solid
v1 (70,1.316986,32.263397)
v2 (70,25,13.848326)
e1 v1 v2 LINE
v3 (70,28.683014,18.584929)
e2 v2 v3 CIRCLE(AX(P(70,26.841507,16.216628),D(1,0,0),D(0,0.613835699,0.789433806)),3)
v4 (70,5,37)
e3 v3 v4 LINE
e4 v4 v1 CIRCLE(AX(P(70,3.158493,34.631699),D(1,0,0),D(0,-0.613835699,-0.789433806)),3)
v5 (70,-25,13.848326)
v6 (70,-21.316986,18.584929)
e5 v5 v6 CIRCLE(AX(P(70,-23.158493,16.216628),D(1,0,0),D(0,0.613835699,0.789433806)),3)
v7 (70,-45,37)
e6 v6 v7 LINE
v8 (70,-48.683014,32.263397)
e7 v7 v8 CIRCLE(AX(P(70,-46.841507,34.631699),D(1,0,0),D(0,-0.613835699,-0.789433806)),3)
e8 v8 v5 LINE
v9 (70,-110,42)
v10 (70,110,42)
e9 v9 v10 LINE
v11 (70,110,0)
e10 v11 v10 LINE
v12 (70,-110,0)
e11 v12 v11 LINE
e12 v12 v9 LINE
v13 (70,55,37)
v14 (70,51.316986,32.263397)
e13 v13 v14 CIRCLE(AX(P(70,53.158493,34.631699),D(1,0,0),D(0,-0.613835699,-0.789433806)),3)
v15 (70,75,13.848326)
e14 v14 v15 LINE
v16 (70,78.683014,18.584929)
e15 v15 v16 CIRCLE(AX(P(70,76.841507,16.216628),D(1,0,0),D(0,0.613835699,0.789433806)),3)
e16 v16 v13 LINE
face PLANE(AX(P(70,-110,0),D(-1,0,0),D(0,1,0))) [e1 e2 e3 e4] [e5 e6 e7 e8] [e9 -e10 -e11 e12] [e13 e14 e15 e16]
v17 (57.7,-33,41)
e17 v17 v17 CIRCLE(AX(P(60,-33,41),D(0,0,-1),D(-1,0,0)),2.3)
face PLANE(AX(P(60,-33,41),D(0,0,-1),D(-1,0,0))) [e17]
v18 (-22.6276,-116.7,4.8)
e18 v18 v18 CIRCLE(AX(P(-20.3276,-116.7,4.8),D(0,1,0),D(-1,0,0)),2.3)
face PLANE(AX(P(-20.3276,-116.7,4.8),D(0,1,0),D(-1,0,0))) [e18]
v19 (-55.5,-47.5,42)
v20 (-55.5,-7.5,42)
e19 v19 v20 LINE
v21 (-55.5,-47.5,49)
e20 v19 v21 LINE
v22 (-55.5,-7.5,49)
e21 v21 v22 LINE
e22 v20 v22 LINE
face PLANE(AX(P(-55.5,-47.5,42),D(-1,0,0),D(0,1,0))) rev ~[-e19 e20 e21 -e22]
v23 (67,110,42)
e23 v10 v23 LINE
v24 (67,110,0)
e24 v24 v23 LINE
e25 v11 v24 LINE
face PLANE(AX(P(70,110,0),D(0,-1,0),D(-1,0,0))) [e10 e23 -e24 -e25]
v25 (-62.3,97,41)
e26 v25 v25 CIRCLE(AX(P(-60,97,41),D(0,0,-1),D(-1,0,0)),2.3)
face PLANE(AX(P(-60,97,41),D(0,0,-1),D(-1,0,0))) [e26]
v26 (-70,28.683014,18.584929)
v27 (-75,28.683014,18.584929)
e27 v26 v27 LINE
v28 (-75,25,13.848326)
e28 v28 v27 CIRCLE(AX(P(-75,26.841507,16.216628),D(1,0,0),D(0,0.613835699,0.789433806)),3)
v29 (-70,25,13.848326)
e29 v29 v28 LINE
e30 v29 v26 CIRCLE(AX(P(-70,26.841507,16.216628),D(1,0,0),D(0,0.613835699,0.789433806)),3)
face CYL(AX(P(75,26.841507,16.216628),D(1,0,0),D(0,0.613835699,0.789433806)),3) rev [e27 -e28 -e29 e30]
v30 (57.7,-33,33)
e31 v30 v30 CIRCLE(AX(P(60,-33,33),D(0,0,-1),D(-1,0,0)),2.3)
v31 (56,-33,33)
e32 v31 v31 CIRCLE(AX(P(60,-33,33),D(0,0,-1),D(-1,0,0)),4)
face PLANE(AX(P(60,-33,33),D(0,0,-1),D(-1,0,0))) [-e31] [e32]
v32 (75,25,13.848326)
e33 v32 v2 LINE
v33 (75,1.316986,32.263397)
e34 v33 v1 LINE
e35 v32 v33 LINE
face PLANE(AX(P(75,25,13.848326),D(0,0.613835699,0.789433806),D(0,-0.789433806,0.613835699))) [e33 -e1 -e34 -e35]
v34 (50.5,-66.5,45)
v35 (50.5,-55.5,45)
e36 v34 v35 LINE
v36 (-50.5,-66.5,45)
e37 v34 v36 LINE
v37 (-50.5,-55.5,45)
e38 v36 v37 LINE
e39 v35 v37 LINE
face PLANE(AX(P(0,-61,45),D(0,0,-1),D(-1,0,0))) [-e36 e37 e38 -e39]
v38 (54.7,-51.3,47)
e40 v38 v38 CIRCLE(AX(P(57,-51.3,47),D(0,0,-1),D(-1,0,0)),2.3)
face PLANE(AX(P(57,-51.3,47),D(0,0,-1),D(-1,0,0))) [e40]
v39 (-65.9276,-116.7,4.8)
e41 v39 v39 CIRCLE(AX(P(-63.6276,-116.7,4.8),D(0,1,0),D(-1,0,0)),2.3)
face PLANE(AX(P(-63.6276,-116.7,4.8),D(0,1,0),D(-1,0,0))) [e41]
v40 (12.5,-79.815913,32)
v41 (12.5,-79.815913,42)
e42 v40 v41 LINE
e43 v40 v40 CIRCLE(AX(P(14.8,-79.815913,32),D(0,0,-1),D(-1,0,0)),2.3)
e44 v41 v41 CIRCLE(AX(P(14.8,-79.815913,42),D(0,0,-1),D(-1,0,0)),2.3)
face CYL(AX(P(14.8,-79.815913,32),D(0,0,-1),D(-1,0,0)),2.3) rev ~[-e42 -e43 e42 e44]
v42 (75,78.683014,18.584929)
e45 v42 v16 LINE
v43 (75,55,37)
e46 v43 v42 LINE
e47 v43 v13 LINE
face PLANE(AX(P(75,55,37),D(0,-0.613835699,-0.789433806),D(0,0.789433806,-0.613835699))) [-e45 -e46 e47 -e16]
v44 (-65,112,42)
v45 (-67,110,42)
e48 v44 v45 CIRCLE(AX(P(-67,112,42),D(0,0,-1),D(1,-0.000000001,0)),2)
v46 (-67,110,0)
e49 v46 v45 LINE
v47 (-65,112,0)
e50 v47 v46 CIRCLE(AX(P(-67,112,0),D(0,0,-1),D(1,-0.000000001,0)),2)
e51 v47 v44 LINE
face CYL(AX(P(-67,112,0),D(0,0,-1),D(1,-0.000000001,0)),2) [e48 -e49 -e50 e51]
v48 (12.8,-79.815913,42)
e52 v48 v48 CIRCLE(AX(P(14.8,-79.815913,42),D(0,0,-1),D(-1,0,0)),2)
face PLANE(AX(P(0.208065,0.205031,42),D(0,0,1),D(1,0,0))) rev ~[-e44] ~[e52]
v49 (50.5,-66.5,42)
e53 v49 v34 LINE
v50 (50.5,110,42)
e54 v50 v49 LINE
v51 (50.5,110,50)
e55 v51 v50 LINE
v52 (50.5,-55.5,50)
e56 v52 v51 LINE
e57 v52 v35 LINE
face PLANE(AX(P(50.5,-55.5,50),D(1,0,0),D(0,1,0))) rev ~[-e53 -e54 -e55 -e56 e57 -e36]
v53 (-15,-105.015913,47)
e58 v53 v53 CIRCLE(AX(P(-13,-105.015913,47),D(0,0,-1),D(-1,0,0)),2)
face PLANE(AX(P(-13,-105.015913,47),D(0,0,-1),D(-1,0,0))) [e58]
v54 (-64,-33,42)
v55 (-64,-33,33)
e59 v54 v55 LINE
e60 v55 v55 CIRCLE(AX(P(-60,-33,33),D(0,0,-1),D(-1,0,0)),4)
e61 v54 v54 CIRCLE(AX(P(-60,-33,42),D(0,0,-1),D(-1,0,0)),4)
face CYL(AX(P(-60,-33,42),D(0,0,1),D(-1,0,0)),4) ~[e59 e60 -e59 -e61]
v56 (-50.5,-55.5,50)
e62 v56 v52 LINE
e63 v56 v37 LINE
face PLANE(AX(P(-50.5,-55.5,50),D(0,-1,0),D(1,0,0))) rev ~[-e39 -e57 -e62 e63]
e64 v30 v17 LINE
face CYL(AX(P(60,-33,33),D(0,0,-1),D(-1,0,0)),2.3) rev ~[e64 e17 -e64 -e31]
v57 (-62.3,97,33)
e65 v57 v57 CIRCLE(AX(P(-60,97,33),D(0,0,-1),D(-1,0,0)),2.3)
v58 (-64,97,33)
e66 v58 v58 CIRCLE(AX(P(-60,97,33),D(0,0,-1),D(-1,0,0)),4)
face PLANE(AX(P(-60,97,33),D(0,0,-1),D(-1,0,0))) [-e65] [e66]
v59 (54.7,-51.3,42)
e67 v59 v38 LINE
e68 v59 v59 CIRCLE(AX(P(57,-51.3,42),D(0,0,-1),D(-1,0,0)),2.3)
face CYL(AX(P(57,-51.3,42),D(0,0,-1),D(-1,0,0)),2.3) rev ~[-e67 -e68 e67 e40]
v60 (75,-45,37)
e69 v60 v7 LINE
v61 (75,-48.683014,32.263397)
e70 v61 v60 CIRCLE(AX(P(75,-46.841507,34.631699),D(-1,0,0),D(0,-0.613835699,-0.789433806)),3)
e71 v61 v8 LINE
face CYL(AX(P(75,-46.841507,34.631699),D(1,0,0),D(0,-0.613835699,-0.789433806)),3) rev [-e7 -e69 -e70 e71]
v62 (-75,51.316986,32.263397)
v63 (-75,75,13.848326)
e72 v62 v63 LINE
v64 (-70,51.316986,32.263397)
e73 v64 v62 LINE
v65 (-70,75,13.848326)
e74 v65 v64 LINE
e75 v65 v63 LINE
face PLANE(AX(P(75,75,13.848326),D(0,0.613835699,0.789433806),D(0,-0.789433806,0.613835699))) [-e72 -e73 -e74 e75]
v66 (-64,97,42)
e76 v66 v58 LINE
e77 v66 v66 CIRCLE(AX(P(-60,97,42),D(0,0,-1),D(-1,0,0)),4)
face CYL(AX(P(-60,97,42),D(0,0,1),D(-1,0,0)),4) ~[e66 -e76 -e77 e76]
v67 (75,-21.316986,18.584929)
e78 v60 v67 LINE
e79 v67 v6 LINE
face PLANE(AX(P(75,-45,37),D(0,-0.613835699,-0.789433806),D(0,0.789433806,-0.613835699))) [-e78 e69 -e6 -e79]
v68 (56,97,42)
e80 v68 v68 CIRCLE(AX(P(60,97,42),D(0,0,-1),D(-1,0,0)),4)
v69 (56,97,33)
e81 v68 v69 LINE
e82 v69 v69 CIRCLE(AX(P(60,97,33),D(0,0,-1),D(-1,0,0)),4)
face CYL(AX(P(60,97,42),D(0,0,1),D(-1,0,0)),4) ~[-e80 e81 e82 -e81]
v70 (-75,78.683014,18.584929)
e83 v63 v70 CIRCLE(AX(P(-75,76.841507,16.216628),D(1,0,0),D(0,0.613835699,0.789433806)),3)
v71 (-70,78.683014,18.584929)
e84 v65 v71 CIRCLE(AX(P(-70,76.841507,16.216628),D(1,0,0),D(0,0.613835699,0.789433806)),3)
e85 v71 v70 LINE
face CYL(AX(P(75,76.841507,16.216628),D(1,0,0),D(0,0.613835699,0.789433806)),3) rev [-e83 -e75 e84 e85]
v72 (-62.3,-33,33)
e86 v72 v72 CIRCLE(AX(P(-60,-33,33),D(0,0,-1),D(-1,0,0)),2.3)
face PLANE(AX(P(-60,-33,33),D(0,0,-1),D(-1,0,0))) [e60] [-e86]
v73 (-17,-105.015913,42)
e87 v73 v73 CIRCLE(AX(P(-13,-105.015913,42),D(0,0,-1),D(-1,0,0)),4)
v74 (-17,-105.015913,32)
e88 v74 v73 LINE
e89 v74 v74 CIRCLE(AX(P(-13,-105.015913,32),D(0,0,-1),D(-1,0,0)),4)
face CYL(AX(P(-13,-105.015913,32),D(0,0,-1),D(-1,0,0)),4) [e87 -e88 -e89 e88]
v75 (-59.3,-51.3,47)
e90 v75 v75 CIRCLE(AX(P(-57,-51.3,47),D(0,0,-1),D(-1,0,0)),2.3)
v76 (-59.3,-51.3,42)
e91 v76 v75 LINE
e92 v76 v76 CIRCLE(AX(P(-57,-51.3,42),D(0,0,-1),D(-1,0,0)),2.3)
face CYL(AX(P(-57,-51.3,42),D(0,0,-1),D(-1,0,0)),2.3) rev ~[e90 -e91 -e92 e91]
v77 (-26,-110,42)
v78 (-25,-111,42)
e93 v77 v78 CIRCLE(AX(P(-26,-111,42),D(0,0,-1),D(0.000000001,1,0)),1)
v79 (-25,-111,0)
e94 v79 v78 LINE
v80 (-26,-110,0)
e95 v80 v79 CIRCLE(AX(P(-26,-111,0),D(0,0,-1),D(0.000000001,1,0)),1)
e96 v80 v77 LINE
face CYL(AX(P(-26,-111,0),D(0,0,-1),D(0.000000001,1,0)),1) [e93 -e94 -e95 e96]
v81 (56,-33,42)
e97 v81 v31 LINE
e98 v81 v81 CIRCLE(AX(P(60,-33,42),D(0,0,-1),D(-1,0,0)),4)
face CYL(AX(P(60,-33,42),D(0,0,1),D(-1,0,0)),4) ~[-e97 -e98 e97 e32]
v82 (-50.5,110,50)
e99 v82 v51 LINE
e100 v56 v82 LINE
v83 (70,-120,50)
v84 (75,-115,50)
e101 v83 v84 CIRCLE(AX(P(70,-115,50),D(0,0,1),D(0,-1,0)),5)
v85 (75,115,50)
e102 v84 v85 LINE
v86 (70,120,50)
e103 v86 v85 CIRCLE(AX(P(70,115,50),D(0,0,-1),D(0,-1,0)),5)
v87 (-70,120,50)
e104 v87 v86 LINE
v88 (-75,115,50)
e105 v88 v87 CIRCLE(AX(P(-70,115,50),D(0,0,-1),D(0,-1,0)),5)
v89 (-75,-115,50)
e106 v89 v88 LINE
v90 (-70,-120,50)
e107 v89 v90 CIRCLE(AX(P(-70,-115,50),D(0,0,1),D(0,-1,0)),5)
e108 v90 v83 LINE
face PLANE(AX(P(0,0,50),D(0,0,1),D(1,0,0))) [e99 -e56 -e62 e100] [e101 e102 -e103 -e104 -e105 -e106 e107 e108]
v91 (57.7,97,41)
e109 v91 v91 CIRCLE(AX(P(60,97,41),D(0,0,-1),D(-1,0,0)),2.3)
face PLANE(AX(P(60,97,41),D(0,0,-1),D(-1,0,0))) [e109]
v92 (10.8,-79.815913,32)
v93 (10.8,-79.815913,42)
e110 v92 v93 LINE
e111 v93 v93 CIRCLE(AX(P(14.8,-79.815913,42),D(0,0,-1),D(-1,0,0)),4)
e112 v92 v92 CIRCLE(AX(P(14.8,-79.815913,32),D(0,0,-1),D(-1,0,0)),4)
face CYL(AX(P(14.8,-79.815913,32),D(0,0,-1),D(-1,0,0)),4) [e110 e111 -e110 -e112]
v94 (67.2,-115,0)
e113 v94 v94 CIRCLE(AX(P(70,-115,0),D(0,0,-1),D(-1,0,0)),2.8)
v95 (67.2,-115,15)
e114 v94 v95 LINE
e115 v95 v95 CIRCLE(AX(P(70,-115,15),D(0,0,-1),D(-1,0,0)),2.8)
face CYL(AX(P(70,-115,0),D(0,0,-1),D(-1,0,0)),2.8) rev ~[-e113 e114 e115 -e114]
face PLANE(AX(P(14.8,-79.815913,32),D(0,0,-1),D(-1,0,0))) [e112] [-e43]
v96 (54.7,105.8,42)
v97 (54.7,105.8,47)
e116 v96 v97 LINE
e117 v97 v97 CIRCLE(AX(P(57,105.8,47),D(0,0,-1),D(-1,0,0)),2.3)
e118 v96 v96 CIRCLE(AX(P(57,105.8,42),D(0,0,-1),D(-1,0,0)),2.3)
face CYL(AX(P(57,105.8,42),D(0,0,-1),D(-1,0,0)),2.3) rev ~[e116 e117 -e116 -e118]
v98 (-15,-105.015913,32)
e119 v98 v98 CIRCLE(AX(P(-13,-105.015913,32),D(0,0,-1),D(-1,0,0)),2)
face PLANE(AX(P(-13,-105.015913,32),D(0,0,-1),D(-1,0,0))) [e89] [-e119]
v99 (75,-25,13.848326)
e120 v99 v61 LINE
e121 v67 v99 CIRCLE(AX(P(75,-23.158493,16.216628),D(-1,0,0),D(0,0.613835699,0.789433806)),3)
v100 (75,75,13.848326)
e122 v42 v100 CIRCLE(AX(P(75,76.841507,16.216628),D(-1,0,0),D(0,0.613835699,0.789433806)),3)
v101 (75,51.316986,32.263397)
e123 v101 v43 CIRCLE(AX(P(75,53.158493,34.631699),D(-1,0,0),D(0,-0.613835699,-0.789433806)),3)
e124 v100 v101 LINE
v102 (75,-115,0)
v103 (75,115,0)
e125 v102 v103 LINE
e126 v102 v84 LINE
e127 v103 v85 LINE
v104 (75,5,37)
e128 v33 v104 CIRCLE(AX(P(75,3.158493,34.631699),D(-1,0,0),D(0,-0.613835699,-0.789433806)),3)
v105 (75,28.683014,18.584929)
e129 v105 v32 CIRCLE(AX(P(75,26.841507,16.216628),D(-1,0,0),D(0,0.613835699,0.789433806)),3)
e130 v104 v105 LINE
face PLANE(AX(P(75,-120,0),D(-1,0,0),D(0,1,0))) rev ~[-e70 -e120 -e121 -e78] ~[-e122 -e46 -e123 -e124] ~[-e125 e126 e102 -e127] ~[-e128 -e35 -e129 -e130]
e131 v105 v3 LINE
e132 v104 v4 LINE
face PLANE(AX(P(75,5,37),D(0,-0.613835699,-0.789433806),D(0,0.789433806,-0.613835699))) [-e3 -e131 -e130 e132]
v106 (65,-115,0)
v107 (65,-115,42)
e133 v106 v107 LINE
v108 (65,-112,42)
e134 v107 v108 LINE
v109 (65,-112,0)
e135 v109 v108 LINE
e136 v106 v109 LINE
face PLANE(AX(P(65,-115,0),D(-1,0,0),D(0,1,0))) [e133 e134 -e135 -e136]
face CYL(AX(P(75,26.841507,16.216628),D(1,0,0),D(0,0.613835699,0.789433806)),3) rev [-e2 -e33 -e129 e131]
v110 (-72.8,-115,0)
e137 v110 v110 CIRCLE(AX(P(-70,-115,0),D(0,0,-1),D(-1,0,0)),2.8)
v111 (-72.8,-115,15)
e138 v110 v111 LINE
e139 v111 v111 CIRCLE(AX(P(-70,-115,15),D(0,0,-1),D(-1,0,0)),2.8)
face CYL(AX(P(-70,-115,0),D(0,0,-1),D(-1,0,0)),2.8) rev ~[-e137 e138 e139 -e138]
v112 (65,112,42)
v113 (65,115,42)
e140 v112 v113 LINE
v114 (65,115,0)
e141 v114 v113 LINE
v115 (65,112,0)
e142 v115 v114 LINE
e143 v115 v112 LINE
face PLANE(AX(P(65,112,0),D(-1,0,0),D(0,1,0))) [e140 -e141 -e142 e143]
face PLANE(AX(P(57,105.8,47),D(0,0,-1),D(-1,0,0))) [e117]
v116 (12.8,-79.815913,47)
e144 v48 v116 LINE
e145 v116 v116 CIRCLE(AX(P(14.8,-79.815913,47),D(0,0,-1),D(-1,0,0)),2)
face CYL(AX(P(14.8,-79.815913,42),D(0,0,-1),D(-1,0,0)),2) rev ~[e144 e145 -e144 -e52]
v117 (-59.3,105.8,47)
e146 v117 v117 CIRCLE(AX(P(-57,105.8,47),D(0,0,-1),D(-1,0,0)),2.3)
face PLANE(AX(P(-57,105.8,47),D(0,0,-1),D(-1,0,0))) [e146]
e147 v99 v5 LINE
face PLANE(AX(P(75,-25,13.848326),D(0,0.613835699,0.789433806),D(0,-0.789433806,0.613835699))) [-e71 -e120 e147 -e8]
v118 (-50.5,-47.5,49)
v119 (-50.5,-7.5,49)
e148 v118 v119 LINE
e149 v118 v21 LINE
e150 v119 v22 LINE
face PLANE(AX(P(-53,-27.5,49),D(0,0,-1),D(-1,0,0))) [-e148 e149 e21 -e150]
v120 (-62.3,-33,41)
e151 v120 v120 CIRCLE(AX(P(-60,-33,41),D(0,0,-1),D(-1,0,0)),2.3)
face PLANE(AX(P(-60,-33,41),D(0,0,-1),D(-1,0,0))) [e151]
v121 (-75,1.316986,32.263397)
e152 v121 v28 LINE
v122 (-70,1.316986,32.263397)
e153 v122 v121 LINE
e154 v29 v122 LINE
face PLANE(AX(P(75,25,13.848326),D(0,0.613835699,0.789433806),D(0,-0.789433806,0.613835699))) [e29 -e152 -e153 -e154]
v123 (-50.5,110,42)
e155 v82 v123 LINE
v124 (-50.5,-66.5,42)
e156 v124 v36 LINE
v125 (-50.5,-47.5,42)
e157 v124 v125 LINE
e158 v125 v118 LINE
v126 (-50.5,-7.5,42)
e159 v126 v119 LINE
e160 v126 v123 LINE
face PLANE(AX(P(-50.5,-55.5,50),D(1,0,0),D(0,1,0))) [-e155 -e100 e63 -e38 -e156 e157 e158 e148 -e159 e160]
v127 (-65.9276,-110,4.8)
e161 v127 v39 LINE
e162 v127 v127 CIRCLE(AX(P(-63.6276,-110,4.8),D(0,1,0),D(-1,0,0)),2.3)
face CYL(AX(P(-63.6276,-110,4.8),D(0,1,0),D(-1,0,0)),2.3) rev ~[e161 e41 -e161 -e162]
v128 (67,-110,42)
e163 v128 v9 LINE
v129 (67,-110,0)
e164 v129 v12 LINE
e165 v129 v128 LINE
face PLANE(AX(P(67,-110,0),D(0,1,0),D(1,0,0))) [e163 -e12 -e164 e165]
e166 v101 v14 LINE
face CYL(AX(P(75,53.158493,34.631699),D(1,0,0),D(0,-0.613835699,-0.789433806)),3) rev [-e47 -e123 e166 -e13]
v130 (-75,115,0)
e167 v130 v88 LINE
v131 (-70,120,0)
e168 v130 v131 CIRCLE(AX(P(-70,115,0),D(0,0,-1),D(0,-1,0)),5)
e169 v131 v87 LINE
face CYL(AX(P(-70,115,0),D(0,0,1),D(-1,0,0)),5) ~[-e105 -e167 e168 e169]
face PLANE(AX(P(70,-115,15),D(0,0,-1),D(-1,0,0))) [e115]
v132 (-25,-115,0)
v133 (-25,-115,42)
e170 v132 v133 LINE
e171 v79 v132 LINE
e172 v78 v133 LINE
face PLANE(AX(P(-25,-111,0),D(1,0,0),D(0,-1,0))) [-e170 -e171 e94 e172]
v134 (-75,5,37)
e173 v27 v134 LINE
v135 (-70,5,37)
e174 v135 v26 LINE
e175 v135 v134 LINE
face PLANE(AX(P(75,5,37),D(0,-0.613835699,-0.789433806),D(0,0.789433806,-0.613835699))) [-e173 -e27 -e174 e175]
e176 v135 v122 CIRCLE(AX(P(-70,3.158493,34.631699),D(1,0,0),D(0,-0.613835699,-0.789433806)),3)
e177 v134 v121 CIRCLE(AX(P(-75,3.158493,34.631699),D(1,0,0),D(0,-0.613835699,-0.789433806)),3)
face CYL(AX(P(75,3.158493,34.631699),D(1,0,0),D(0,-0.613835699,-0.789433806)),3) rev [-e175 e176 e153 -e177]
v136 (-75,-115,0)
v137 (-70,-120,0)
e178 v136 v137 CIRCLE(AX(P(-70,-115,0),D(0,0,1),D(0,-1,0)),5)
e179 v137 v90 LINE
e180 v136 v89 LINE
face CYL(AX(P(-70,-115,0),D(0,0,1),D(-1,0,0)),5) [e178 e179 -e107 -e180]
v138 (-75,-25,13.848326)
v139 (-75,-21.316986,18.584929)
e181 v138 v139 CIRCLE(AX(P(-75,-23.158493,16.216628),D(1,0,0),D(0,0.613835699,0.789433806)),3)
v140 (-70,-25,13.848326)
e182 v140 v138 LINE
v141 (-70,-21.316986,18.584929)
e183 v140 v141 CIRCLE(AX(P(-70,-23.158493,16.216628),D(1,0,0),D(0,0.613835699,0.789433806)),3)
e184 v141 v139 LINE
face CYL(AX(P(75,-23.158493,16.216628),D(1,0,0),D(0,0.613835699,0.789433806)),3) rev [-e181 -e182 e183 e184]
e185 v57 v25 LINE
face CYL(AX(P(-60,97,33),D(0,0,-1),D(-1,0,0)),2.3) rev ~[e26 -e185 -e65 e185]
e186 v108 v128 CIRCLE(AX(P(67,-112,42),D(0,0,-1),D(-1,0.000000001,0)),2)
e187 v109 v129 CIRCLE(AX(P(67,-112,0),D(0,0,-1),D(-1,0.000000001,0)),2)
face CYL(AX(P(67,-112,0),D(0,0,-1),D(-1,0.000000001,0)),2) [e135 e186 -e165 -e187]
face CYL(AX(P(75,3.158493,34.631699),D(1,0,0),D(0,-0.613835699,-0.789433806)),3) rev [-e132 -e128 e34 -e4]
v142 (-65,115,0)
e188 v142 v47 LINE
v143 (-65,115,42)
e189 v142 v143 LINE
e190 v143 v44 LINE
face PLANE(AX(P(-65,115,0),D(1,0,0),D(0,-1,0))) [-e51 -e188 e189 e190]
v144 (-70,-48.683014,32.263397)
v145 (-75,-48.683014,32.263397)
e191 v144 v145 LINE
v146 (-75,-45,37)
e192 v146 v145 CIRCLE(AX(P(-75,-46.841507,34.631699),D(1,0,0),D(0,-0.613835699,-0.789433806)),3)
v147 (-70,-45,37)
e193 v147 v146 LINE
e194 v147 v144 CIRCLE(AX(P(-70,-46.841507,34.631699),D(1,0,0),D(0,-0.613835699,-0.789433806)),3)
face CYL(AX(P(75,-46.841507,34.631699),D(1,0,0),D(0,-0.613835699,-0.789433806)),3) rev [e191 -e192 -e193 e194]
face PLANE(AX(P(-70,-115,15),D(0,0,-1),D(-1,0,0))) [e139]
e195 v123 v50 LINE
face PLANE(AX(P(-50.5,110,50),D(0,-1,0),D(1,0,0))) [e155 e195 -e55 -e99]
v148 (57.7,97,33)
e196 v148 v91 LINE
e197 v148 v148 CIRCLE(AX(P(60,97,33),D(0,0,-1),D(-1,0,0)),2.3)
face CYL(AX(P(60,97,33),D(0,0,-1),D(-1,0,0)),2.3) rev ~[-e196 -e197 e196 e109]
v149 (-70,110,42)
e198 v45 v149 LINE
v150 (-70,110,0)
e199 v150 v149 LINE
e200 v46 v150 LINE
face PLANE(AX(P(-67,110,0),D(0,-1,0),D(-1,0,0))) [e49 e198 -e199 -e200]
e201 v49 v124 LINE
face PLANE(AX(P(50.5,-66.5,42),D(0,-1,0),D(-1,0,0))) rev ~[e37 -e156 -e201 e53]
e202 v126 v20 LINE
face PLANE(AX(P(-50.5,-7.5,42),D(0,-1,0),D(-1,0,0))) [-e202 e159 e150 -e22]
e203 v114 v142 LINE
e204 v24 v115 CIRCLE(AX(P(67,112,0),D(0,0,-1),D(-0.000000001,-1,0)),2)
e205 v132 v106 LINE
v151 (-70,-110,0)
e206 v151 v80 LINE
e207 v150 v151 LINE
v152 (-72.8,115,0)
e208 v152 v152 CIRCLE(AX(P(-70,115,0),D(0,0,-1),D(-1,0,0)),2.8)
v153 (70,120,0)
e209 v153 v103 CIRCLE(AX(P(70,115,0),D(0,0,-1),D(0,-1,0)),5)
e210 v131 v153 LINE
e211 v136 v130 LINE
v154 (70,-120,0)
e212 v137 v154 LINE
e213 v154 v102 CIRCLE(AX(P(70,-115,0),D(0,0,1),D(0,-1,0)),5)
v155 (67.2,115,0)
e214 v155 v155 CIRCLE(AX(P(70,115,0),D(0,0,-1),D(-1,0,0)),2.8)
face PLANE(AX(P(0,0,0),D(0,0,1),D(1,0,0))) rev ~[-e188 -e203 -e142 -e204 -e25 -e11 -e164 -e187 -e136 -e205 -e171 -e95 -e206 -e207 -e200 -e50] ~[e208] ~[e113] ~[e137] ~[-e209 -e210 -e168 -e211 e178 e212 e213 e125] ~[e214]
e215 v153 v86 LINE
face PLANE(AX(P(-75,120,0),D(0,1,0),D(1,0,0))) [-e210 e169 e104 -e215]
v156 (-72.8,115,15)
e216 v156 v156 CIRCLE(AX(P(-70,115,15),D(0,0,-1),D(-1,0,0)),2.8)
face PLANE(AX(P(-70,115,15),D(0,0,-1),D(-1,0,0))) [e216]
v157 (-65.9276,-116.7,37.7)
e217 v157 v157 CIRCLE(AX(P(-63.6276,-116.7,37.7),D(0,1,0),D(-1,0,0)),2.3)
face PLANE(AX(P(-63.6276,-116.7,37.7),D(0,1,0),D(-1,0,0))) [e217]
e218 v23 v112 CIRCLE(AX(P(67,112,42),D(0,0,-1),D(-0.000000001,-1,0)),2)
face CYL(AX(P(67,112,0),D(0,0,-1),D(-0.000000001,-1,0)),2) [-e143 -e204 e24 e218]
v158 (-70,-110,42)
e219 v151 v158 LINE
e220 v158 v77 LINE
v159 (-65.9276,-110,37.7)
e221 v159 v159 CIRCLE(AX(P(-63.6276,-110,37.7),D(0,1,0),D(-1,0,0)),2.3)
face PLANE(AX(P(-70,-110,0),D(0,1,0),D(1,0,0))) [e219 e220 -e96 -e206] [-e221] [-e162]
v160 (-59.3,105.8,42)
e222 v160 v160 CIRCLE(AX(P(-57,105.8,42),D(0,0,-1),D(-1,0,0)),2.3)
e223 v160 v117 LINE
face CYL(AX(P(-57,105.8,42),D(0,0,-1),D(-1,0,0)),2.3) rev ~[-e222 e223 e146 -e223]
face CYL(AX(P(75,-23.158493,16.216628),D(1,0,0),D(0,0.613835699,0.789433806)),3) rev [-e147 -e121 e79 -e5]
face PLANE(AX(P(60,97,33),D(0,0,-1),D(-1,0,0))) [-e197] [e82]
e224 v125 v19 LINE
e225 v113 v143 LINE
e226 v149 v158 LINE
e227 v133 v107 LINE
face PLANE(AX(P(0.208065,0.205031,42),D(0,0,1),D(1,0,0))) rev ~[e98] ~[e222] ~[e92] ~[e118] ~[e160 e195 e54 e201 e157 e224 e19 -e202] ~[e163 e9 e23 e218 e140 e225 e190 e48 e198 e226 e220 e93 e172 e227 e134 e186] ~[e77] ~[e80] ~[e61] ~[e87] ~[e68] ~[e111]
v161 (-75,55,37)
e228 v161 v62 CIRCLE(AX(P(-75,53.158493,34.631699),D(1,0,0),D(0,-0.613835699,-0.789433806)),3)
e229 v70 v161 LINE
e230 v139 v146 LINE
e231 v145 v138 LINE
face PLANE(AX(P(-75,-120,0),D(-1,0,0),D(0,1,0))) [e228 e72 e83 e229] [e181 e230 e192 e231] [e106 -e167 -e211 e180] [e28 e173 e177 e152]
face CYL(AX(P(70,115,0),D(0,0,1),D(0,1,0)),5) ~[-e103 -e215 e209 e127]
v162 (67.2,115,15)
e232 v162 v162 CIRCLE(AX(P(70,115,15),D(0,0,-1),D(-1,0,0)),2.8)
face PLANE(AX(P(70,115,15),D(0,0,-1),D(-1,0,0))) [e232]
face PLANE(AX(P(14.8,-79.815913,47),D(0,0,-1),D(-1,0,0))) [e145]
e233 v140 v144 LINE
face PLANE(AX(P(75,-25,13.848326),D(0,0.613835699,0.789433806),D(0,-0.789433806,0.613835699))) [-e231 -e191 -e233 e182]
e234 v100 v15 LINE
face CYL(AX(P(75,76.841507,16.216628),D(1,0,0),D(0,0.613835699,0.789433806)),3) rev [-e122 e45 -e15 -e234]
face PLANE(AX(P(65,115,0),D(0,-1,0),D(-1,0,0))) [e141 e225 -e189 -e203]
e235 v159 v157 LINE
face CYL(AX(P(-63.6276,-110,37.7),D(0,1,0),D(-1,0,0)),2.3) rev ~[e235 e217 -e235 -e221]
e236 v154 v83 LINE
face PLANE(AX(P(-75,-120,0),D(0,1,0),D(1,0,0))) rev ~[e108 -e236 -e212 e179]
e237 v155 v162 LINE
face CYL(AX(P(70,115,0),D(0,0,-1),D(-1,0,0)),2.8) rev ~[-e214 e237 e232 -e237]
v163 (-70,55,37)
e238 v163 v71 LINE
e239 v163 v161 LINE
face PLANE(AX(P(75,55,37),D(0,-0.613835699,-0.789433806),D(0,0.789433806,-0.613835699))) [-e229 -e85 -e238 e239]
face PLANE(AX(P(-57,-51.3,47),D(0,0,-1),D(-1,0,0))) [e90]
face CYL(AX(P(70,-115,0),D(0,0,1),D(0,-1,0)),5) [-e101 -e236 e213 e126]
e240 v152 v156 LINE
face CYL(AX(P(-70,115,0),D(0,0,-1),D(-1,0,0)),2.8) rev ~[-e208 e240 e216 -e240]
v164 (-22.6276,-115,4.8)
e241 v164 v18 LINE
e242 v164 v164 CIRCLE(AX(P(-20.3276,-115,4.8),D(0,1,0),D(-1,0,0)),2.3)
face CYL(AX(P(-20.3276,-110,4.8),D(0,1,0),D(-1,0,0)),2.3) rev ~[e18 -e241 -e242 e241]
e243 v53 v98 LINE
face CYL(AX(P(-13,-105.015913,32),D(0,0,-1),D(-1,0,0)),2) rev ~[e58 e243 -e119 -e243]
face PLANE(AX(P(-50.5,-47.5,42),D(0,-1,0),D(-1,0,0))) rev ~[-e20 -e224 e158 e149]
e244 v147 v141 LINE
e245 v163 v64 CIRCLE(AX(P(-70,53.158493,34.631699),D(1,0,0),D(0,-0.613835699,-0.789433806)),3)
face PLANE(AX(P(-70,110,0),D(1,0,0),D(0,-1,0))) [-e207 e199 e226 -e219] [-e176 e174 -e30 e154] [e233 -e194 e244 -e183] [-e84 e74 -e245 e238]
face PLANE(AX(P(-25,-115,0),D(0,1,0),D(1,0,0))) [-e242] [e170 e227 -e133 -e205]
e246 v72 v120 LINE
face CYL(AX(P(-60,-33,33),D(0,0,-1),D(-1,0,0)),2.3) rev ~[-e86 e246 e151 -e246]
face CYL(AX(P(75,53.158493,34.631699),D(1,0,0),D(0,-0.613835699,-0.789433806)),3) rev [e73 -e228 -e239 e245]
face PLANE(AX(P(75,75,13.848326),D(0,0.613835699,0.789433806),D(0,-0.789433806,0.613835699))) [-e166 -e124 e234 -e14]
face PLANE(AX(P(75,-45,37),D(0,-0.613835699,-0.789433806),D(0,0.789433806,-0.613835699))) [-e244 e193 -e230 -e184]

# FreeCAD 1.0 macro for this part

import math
import FreeCAD as App
import Part
import Sketcher
from FreeCAD import Vector


def edges_at(feature, points):
    """Names of the edges that pass closest to the given points."""
    edges = feature.Shape.Edges
    near = lambda p: min(range(len(edges)), key=lambda i: edges[i].distToShape(Part.Vertex(*p))[0])
    return sorted({f"Edge{near(p) + 1}" for p in points})

doc = App.newDocument("Part")
body = doc.addObject("PartDesign::Body", "Body")

# Sketch on XY plane
sketch1 = doc.addObject("Sketcher::SketchObject", "Sketch")
body.addObject(sketch1)
sketch1.AttachmentSupport = (doc.XY_Plane, [""])
sketch1.MapMode = "FlatFace"
sketch1.addGeometry(Part.LineSegment(Vector(-75, 120, 0), Vector(-75, -120, 0)), False)
sketch1.addGeometry(Part.LineSegment(Vector(-75, -120, 0), Vector(75, -120, 0)), False)
sketch1.addGeometry(Part.LineSegment(Vector(75, -120, 0), Vector(75, 120, 0)), False)
sketch1.addGeometry(Part.LineSegment(Vector(75, 120, 0), Vector(-75, 120, 0)), False)
sketch1.addConstraint(Sketcher.Constraint("Coincident", 0, 2, 1, 1))
sketch1.addConstraint(Sketcher.Constraint("Coincident", 1, 2, 2, 1))
sketch1.addConstraint(Sketcher.Constraint("Coincident", 2, 2, 3, 1))
sketch1.addConstraint(Sketcher.Constraint("Coincident", 3, 2, 0, 1))
sketch1.addConstraint(Sketcher.Constraint("Vertical", 0))
sketch1.addConstraint(Sketcher.Constraint("Horizontal", 1))
sketch1.addConstraint(Sketcher.Constraint("Vertical", 2))
sketch1.addConstraint(Sketcher.Constraint("Horizontal", 3))
sketch1.addConstraint(Sketcher.Constraint("Symmetric", 0, 2, 2, 2, -1, 1))
sketch1.addConstraint(Sketcher.Constraint("DistanceX", 1, 1, 1, 2, 150.0))
sketch1.addConstraint(Sketcher.Constraint("DistanceY", 0, 2, 0, 1, 240.0))
pad1 = doc.addObject("PartDesign::Pad", "Pad")
body.addObject(pad1)
pad1.Profile = sketch1
pad1.Length = 50

# Sketch on XY plane
sketch2 = doc.addObject("Sketcher::SketchObject", "Sketch001")
body.addObject(sketch2)
sketch2.AttachmentSupport = (doc.XY_Plane, [""])
sketch2.MapMode = "FlatFace"
sketch2.addGeometry(Part.LineSegment(Vector(70, 110, 0), Vector(70, -110, 0)), False)
sketch2.addGeometry(Part.LineSegment(Vector(70, -110, 0), Vector(67, -110, 0)), False)
sketch2.addGeometry(Part.ArcOfCircle(Part.Circle(Vector(67, -112, 0), Vector(0, 0, 1), 2), math.radians(90), math.radians(180)), False)
sketch2.addGeometry(Part.LineSegment(Vector(65, -112, 0), Vector(65, -115, 0)), False)
sketch2.addGeometry(Part.LineSegment(Vector(65, -115, 0), Vector(-25, -115, 0)), False)
sketch2.addGeometry(Part.LineSegment(Vector(-25, -115, 0), Vector(-25, -111, 0)), False)
sketch2.addGeometry(Part.ArcOfCircle(Part.Circle(Vector(-26, -111, 0), Vector(0, 0, 1), 1), math.radians(0), math.radians(90)), False)
sketch2.addGeometry(Part.LineSegment(Vector(-26, -110, 0), Vector(-70, -110, 0)), False)
sketch2.addGeometry(Part.LineSegment(Vector(-70, -110, 0), Vector(-70, 110, 0)), False)
sketch2.addGeometry(Part.LineSegment(Vector(-70, 110, 0), Vector(-67, 110, 0)), False)
sketch2.addGeometry(Part.ArcOfCircle(Part.Circle(Vector(-67, 112, 0), Vector(0, 0, 1), 2), math.radians(-90), math.radians(0)), False)
sketch2.addGeometry(Part.LineSegment(Vector(-65, 112, 0), Vector(-65, 115, 0)), False)
sketch2.addGeometry(Part.LineSegment(Vector(-65, 115, 0), Vector(65, 115, 0)), False)
sketch2.addGeometry(Part.LineSegment(Vector(65, 115, 0), Vector(65, 112, 0)), False)
sketch2.addGeometry(Part.ArcOfCircle(Part.Circle(Vector(67, 112, 0), Vector(0, 0, 1), 2), math.radians(-180), math.radians(-90)), False)
sketch2.addGeometry(Part.LineSegment(Vector(67, 110, 0), Vector(70, 110, 0)), False)
sketch2.addConstraint(Sketcher.Constraint("Coincident", 0, 2, 1, 1))
sketch2.addConstraint(Sketcher.Constraint("Tangent", 1, 2, 2, 1))
sketch2.addConstraint(Sketcher.Constraint("Tangent", 2, 2, 3, 1))
sketch2.addConstraint(Sketcher.Constraint("Coincident", 3, 2, 4, 1))
sketch2.addConstraint(Sketcher.Constraint("Coincident", 4, 2, 5, 1))
sketch2.addConstraint(Sketcher.Constraint("Tangent", 5, 2, 6, 1))
sketch2.addConstraint(Sketcher.Constraint("Tangent", 6, 2, 7, 1))
sketch2.addConstraint(Sketcher.Constraint("Coincident", 7, 2, 8, 1))
sketch2.addConstraint(Sketcher.Constraint("Coincident", 8, 2, 9, 1))
sketch2.addConstraint(Sketcher.Constraint("Tangent", 9, 2, 10, 1))
sketch2.addConstraint(Sketcher.Constraint("Tangent", 10, 2, 11, 1))
sketch2.addConstraint(Sketcher.Constraint("Coincident", 11, 2, 12, 1))
sketch2.addConstraint(Sketcher.Constraint("Coincident", 12, 2, 13, 1))
sketch2.addConstraint(Sketcher.Constraint("Tangent", 13, 2, 14, 1))
sketch2.addConstraint(Sketcher.Constraint("Tangent", 14, 2, 15, 1))
sketch2.addConstraint(Sketcher.Constraint("Coincident", 15, 2, 0, 1))
sketch2.addConstraint(Sketcher.Constraint("Vertical", 0))
sketch2.addConstraint(Sketcher.Constraint("Horizontal", 1))
sketch2.addConstraint(Sketcher.Constraint("Vertical", 3))
sketch2.addConstraint(Sketcher.Constraint("Horizontal", 4))
sketch2.addConstraint(Sketcher.Constraint("Vertical", 5))
sketch2.addConstraint(Sketcher.Constraint("Horizontal", 7))
sketch2.addConstraint(Sketcher.Constraint("Vertical", 8))
sketch2.addConstraint(Sketcher.Constraint("Horizontal", 9))
sketch2.addConstraint(Sketcher.Constraint("Vertical", 11))
sketch2.addConstraint(Sketcher.Constraint("Horizontal", 12))
sketch2.addConstraint(Sketcher.Constraint("Vertical", 13))
sketch2.addConstraint(Sketcher.Constraint("Horizontal", 15))
sketch2.addConstraint(Sketcher.Constraint("Equal", 2, 10))
sketch2.addConstraint(Sketcher.Constraint("Equal", 10, 14))
sketch2.addConstraint(Sketcher.Constraint("Symmetric", 2, 3, 10, 3, -1, 1))
sketch2.addConstraint(Sketcher.Constraint("Symmetric", 7, 2, 15, 2, -1, 1))
sketch2.addConstraint(Sketcher.Constraint("Symmetric", 10, 3, 14, 3, -2))
sketch2.addConstraint(Sketcher.Constraint("Equal", 15, 3))
sketch2.addConstraint(Sketcher.Constraint("Equal", 3, 11))
sketch2.addConstraint(Sketcher.Constraint("Radius", 2, 2.0))
sketch2.addConstraint(Sketcher.Constraint("Radius", 6, 1.0))
sketch2.addConstraint(Sketcher.Constraint("DistanceX", 1, 2, 1, 1, 3.0))
sketch2.addConstraint(Sketcher.Constraint("DistanceX", 4, 2, 4, 1, 90.0))
sketch2.addConstraint(Sketcher.Constraint("DistanceX", 7, 2, 7, 1, 44.0))
sketch2.addConstraint(Sketcher.Constraint("DistanceY", 0, 2, 0, 1, 220.0))
pocket1 = doc.addObject("PartDesign::Pocket", "Pocket")
body.addObject(pocket1)
pocket1.Profile = sketch2
pocket1.Length = 42
pocket1.Reversed = True

# Sketch on XY plane
sketch3 = doc.addObject("Sketcher::SketchObject", "Sketch002")
body.addObject(sketch3)
sketch3.AttachmentSupport = (doc.XY_Plane, [""])
sketch3.MapMode = "FlatFace"
sketch3.AttachmentOffset = App.Placement(Vector(0, 0, 50), App.Rotation())
sketch3.addGeometry(Part.LineSegment(Vector(-50, 110, 0), Vector(-50, -56, 0)), False)
sketch3.addGeometry(Part.LineSegment(Vector(-50, -56, 0), Vector(50, -56, 0)), False)
sketch3.addGeometry(Part.LineSegment(Vector(50, -56, 0), Vector(50, 110, 0)), False)
sketch3.addGeometry(Part.LineSegment(Vector(50, 110, 0), Vector(-50, 110, 0)), False)
sketch3.addConstraint(Sketcher.Constraint("Coincident", 0, 2, 1, 1))
sketch3.addConstraint(Sketcher.Constraint("Coincident", 1, 2, 2, 1))
sketch3.addConstraint(Sketcher.Constraint("Coincident", 2, 2, 3, 1))
sketch3.addConstraint(Sketcher.Constraint("Coincident", 3, 2, 0, 1))
sketch3.addConstraint(Sketcher.Constraint("Vertical", 0))
sketch3.addConstraint(Sketcher.Constraint("Horizontal", 1))
sketch3.addConstraint(Sketcher.Constraint("Vertical", 2))
sketch3.addConstraint(Sketcher.Constraint("Horizontal", 3))
sketch3.addConstraint(Sketcher.Constraint("DistanceX", 1, 1, 1, 2, 101.0))
sketch3.addConstraint(Sketcher.Constraint("DistanceY", 0, 2, 0, 1, 165.5))
sketch3.addConstraint(Sketcher.Constraint("DistanceY", -1, 1, 2, 2, 110.0))
sketch3.addConstraint(Sketcher.Constraint("DistanceX", 0, 2, -1, 1, 50.5))
pocket2 = doc.addObject("PartDesign::Pocket", "Pocket001")
body.addObject(pocket2)
pocket2.Profile = sketch3
pocket2.Type = "ThroughAll"
doc.recompute()

fillet = doc.addObject("PartDesign::Fillet", "Fillet")
body.addObject(fillet)
fillet.Base = (pocket2, edges_at(pocket2, [
    (-75, 120, 25),
    (75, 120, 25),
    (75, -120, 25),
    (-75, -120, 25),
]))
fillet.Radius = 5

# Sketch on XY plane
sketch4 = doc.addObject("Sketcher::SketchObject", "Sketch003")
body.addObject(sketch4)
sketch4.AttachmentSupport = (doc.XY_Plane, [""])
sketch4.MapMode = "FlatFace"
sketch4.addGeometry(Part.Circle(Vector(70, 115, 0), Vector(0, 0, 1), 2.8), False)
sketch4.addGeometry(Part.Circle(Vector(-70, 115, 0), Vector(0, 0, 1), 2.8), False)
sketch4.addGeometry(Part.Circle(Vector(-70, -115, 0), Vector(0, 0, 1), 2.8), False)
sketch4.addGeometry(Part.Circle(Vector(70, -115, 0), Vector(0, 0, 1), 2.8), False)
sketch4.addConstraint(Sketcher.Constraint("Equal", 0, 1))
sketch4.addConstraint(Sketcher.Constraint("Equal", 1, 2))
sketch4.addConstraint(Sketcher.Constraint("Equal", 2, 3))
sketch4.addConstraint(Sketcher.Constraint("Symmetric", 0, 3, 2, 3, -1, 1))
sketch4.addConstraint(Sketcher.Constraint("Symmetric", 1, 3, 3, 3, -1, 1))
sketch4.addConstraint(Sketcher.Constraint("Symmetric", 0, 3, 1, 3, -2))
sketch4.addConstraint(Sketcher.Constraint("Diameter", 0, 5.6))
sketch4.addConstraint(Sketcher.Constraint("DistanceX", -1, 1, 0, 3, 70.0))
sketch4.addConstraint(Sketcher.Constraint("DistanceY", -1, 1, 0, 3, 115.0))
pocket3 = doc.addObject("PartDesign::Pocket", "Pocket002")
body.addObject(pocket3)
pocket3.Profile = sketch4
pocket3.Length = 15
pocket3.Reversed = True

# Sketch on YZ plane
sketch5 = doc.addObject("Sketcher::SketchObject", "Sketch004")
body.addObject(sketch5)
sketch5.AttachmentSupport = (doc.YZ_Plane, [""])
sketch5.MapMode = "FlatFace"
sketch5.AttachmentOffset = App.Placement(Vector(0, 0, 75), App.Rotation())
sketch5.addGeometry(Part.LineSegment(Vector(78.7, 18.6, 0), Vector(55, 37, 0)), False)
sketch5.addGeometry(Part.ArcOfCircle(Part.Circle(Vector(53.2, 34.6, 0), Vector(0, 0, 1), 3), math.radians(52), math.radians(232)), False)
sketch5.addGeometry(Part.LineSegment(Vector(51.3, 32.3, 0), Vector(75, 13.8, 0)), False)
sketch5.addGeometry(Part.ArcOfCircle(Part.Circle(Vector(76.8, 16.2, 0), Vector(0, 0, 1), 3), math.radians(-128), math.radians(52)), False)
sketch5.addGeometry(Part.LineSegment(Vector(28.7, 18.6, 0), Vector(5, 37, 0)), False)
sketch5.addGeometry(Part.ArcOfCircle(Part.Circle(Vector(3.2, 34.6, 0), Vector(0, 0, 1), 3), math.radians(52), math.radians(232)), False)
sketch5.addGeometry(Part.LineSegment(Vector(1.3, 32.3, 0), Vector(25, 13.8, 0)), False)
sketch5.addGeometry(Part.ArcOfCircle(Part.Circle(Vector(26.8, 16.2, 0), Vector(0, 0, 1), 3), math.radians(-128), math.radians(52)), False)
sketch5.addGeometry(Part.LineSegment(Vector(-21.3, 18.6, 0), Vector(-45, 37, 0)), False)
sketch5.addGeometry(Part.ArcOfCircle(Part.Circle(Vector(-46.8, 34.6, 0), Vector(0, 0, 1), 3), math.radians(52), math.radians(232)), False)
sketch5.addGeometry(Part.LineSegment(Vector(-48.7, 32.3, 0), Vector(-25, 13.8, 0)), False)
sketch5.addGeometry(Part.ArcOfCircle(Part.Circle(Vector(-23.2, 16.2, 0), Vector(0, 0, 1), 3), math.radians(-128), math.radians(52)), False)
sketch5.addConstraint(Sketcher.Constraint("Tangent", 0, 2, 1, 1))
sketch5.addConstraint(Sketcher.Constraint("Tangent", 1, 2, 2, 1))
sketch5.addConstraint(Sketcher.Constraint("Tangent", 2, 2, 3, 1))
sketch5.addConstraint(Sketcher.Constraint("Tangent", 3, 2, 0, 1))
sketch5.addConstraint(Sketcher.Constraint("Tangent", 4, 2, 5, 1))
sketch5.addConstraint(Sketcher.Constraint("Tangent", 5, 2, 6, 1))
sketch5.addConstraint(Sketcher.Constraint("Tangent", 6, 2, 7, 1))
sketch5.addConstraint(Sketcher.Constraint("Tangent", 7, 2, 4, 1))
sketch5.addConstraint(Sketcher.Constraint("Tangent", 8, 2, 9, 1))
sketch5.addConstraint(Sketcher.Constraint("Tangent", 9, 2, 10, 1))
sketch5.addConstraint(Sketcher.Constraint("Tangent", 10, 2, 11, 1))
sketch5.addConstraint(Sketcher.Constraint("Tangent", 11, 2, 8, 1))
sketch5.addConstraint(Sketcher.Constraint("Equal", 1, 3))
sketch5.addConstraint(Sketcher.Constraint("Equal", 3, 5))
sketch5.addConstraint(Sketcher.Constraint("Equal", 5, 7))
sketch5.addConstraint(Sketcher.Constraint("Equal", 7, 9))
sketch5.addConstraint(Sketcher.Constraint("Equal", 9, 11))
sketch5.addConstraint(Sketcher.Constraint("Symmetric", 6, 2, 10, 2, -2))
sketch5.addConstraint(Sketcher.Constraint("Parallel", 2, 4))
sketch5.addConstraint(Sketcher.Constraint("Parallel", 6, 8))
sketch5.addConstraint(Sketcher.Constraint("Horizontal", 1, 3, 5, 3))
sketch5.addConstraint(Sketcher.Constraint("Horizontal", 3, 3, 7, 3))
sketch5.addConstraint(Sketcher.Constraint("Horizontal", 5, 3, 9, 3))
sketch5.addConstraint(Sketcher.Constraint("Radius", 1, 3.0))
sketch5.addConstraint(Sketcher.Constraint("Distance", 0, 30.0))
sketch5.addConstraint(Sketcher.Constraint("DistanceX", -1, 1, 0, 2, 55.0))
sketch5.addConstraint(Sketcher.Constraint("DistanceY", -1, 1, 0, 2, 37.0))
sketch5.addConstraint(Sketcher.Constraint("DistanceX", -1, 1, 2, 2, 75.0))
sketch5.addConstraint(Sketcher.Constraint("DistanceX", -1, 1, 4, 2, 5.0))
pocket4 = doc.addObject("PartDesign::Pocket", "Pocket003")
body.addObject(pocket4)
pocket4.Profile = sketch5
pocket4.Type = "ThroughAll"

# Sketch on XY plane
sketch6 = doc.addObject("Sketcher::SketchObject", "Sketch005")
body.addObject(sketch6)
sketch6.AttachmentSupport = (doc.XY_Plane, [""])
sketch6.MapMode = "FlatFace"
sketch6.AttachmentOffset = App.Placement(Vector(0, 0, 42), App.Rotation())
sketch6.addGeometry(Part.Circle(Vector(57, 105.8, 0), Vector(0, 0, 1), 2.3), False)
sketch6.addGeometry(Part.Circle(Vector(57, -51.3, 0), Vector(0, 0, 1), 2.3), False)
sketch6.addGeometry(Part.Circle(Vector(-57, 105.8, 0), Vector(0, 0, 1), 2.3), False)
sketch6.addGeometry(Part.Circle(Vector(-57, -51.3, 0), Vector(0, 0, 1), 2.3), False)
sketch6.addConstraint(Sketcher.Constraint("Equal", 0, 1))
sketch6.addConstraint(Sketcher.Constraint("Equal", 1, 2))
sketch6.addConstraint(Sketcher.Constraint("Equal", 2, 3))
sketch6.addConstraint(Sketcher.Constraint("Symmetric", 0, 3, 2, 3, -2))
sketch6.addConstraint(Sketcher.Constraint("Symmetric", 1, 3, 3, 3, -2))
sketch6.addConstraint(Sketcher.Constraint("Vertical", 0, 3, 1, 3))
sketch6.addConstraint(Sketcher.Constraint("Diameter", 0, 4.6))
sketch6.addConstraint(Sketcher.Constraint("DistanceX", -1, 1, 0, 3, 57.0))
sketch6.addConstraint(Sketcher.Constraint("DistanceY", -1, 1, 0, 3, 105.8))
sketch6.addConstraint(Sketcher.Constraint("DistanceY", 1, 3, -1, 1, 51.3))
pocket5 = doc.addObject("PartDesign::Pocket", "Pocket004")
body.addObject(pocket5)
pocket5.Profile = sketch6
pocket5.Length = 5
pocket5.Reversed = True

# Sketch on XY plane
sketch7 = doc.addObject("Sketcher::SketchObject", "Sketch006")
body.addObject(sketch7)
sketch7.AttachmentSupport = (doc.XY_Plane, [""])
sketch7.MapMode = "FlatFace"
sketch7.AttachmentOffset = App.Placement(Vector(0, 0, 42), App.Rotation())
sketch7.addGeometry(Part.Circle(Vector(14.8, -79.8, 0), Vector(0, 0, 1), 2), False)
sketch7.addGeometry(Part.Circle(Vector(-13, -105, 0), Vector(0, 0, 1), 2), False)
sketch7.addConstraint(Sketcher.Constraint("Equal", 0, 1))
sketch7.addConstraint(Sketcher.Constraint("Diameter", 0, 4.0))
sketch7.addConstraint(Sketcher.Constraint("DistanceX", 1, 3, -1, 1, 13.0))
sketch7.addConstraint(Sketcher.Constraint("DistanceX", -1, 1, 0, 3, 14.8))
sketch7.addConstraint(Sketcher.Constraint("DistanceY", 1, 3, 0, 3, 25.2))
sketch7.addConstraint(Sketcher.Constraint("DistanceY", 0, 3, -1, 1, 79.815913))
pocket6 = doc.addObject("PartDesign::Pocket", "Pocket005")
body.addObject(pocket6)
pocket6.Profile = sketch7
pocket6.Length = 5
pocket6.Reversed = True

# Sketch on XY plane
sketch8 = doc.addObject("Sketcher::SketchObject", "Sketch007")
body.addObject(sketch8)
sketch8.AttachmentSupport = (doc.XY_Plane, [""])
sketch8.MapMode = "FlatFace"
sketch8.AttachmentOffset = App.Placement(Vector(0, 0, 42), App.Rotation())
sketch8.addGeometry(Part.LineSegment(Vector(-50, -8, 0), Vector(-50, -48, 0)), False)
sketch8.addGeometry(Part.LineSegment(Vector(-50, -48, 0), Vector(-56, -48, 0)), False)
sketch8.addGeometry(Part.LineSegment(Vector(-56, -48, 0), Vector(-56, -8, 0)), False)
sketch8.addGeometry(Part.LineSegment(Vector(-56, -8, 0), Vector(-50, -8, 0)), False)
sketch8.addConstraint(Sketcher.Constraint("Coincident", 0, 2, 1, 1))
sketch8.addConstraint(Sketcher.Constraint("Coincident", 1, 2, 2, 1))
sketch8.addConstraint(Sketcher.Constraint("Coincident", 2, 2, 3, 1))
sketch8.addConstraint(Sketcher.Constraint("Coincident", 3, 2, 0, 1))
sketch8.addConstraint(Sketcher.Constraint("Vertical", 0))
sketch8.addConstraint(Sketcher.Constraint("Horizontal", 1))
sketch8.addConstraint(Sketcher.Constraint("Vertical", 2))
sketch8.addConstraint(Sketcher.Constraint("Horizontal", 3))
sketch8.addConstraint(Sketcher.Constraint("DistanceX", 1, 2, 1, 1, 5.0))
sketch8.addConstraint(Sketcher.Constraint("DistanceY", 0, 2, 0, 1, 40.0))
sketch8.addConstraint(Sketcher.Constraint("DistanceX", 0, 2, -1, 1, 50.5))
sketch8.addConstraint(Sketcher.Constraint("DistanceY", 0, 2, -1, 1, 47.5))
pocket7 = doc.addObject("PartDesign::Pocket", "Pocket006")
body.addObject(pocket7)
pocket7.Profile = sketch8
pocket7.Length = 7
pocket7.Reversed = True

# Sketch on XY plane
sketch9 = doc.addObject("Sketcher::SketchObject", "Sketch008")
body.addObject(sketch9)
sketch9.AttachmentSupport = (doc.XY_Plane, [""])
sketch9.MapMode = "FlatFace"
sketch9.AttachmentOffset = App.Placement(Vector(0, 0, 42), App.Rotation())
sketch9.addGeometry(Part.Circle(Vector(60, 97, 0), Vector(0, 0, 1), 4), False)
sketch9.addGeometry(Part.Circle(Vector(-60, 97, 0), Vector(0, 0, 1), 4), False)
sketch9.addGeometry(Part.Circle(Vector(-60, -33, 0), Vector(0, 0, 1), 4), False)
sketch9.addGeometry(Part.Circle(Vector(60, -33, 0), Vector(0, 0, 1), 4), False)
sketch9.addConstraint(Sketcher.Constraint("Equal", 0, 1))
sketch9.addConstraint(Sketcher.Constraint("Equal", 1, 2))
sketch9.addConstraint(Sketcher.Constraint("Equal", 2, 3))
sketch9.addConstraint(Sketcher.Constraint("Symmetric", 0, 3, 1, 3, -2))
sketch9.addConstraint(Sketcher.Constraint("Symmetric", 2, 3, 3, 3, -2))
sketch9.addConstraint(Sketcher.Constraint("Vertical", 1, 3, 2, 3))
sketch9.addConstraint(Sketcher.Constraint("Diameter", 0, 8.0))
sketch9.addConstraint(Sketcher.Constraint("DistanceX", -1, 1, 0, 3, 60.0))
sketch9.addConstraint(Sketcher.Constraint("DistanceY", -1, 1, 0, 3, 97.0))
sketch9.addConstraint(Sketcher.Constraint("DistanceY", 2, 3, -1, 1, 33.0))
pad2 = doc.addObject("PartDesign::Pad", "Pad001")
body.addObject(pad2)
pad2.Profile = sketch9
pad2.Length = 9
pad2.Reversed = True

# Sketch on XY plane
sketch10 = doc.addObject("Sketcher::SketchObject", "Sketch009")
body.addObject(sketch10)
sketch10.AttachmentSupport = (doc.XY_Plane, [""])
sketch10.MapMode = "FlatFace"
sketch10.AttachmentOffset = App.Placement(Vector(0, 0, 33), App.Rotation())
sketch10.addGeometry(Part.Circle(Vector(60, 97, 0), Vector(0, 0, 1), 2.3), False)
sketch10.addGeometry(Part.Circle(Vector(-60, 97, 0), Vector(0, 0, 1), 2.3), False)
sketch10.addGeometry(Part.Circle(Vector(-60, -33, 0), Vector(0, 0, 1), 2.3), False)
sketch10.addGeometry(Part.Circle(Vector(60, -33, 0), Vector(0, 0, 1), 2.3), False)
sketch10.addConstraint(Sketcher.Constraint("Equal", 0, 1))
sketch10.addConstraint(Sketcher.Constraint("Equal", 1, 2))
sketch10.addConstraint(Sketcher.Constraint("Equal", 2, 3))
sketch10.addConstraint(Sketcher.Constraint("Symmetric", 0, 3, 1, 3, -2))
sketch10.addConstraint(Sketcher.Constraint("Symmetric", 2, 3, 3, 3, -2))
sketch10.addConstraint(Sketcher.Constraint("Vertical", 1, 3, 2, 3))
sketch10.addConstraint(Sketcher.Constraint("Diameter", 0, 4.6))
sketch10.addConstraint(Sketcher.Constraint("DistanceX", -1, 1, 0, 3, 60.0))
sketch10.addConstraint(Sketcher.Constraint("DistanceY", -1, 1, 0, 3, 97.0))
sketch10.addConstraint(Sketcher.Constraint("DistanceY", 2, 3, -1, 1, 33.0))
pocket8 = doc.addObject("PartDesign::Pocket", "Pocket007")
body.addObject(pocket8)
pocket8.Profile = sketch10
pocket8.Length = 8
pocket8.Reversed = True

# Sketch on XY plane
sketch11 = doc.addObject("Sketcher::SketchObject", "Sketch010")
body.addObject(sketch11)
sketch11.AttachmentSupport = (doc.XY_Plane, [""])
sketch11.MapMode = "FlatFace"
sketch11.AttachmentOffset = App.Placement(Vector(0, 0, 42), App.Rotation())
sketch11.addGeometry(Part.LineSegment(Vector(50, -56, 0), Vector(50, -66, 0)), False)
sketch11.addGeometry(Part.LineSegment(Vector(50, -66, 0), Vector(-50, -66, 0)), False)
sketch11.addGeometry(Part.LineSegment(Vector(-50, -66, 0), Vector(-50, -56, 0)), False)
sketch11.addGeometry(Part.LineSegment(Vector(-50, -56, 0), Vector(50, -56, 0)), False)
sketch11.addConstraint(Sketcher.Constraint("Coincident", 0, 2, 1, 1))
sketch11.addConstraint(Sketcher.Constraint("Coincident", 1, 2, 2, 1))
sketch11.addConstraint(Sketcher.Constraint("Coincident", 2, 2, 3, 1))
sketch11.addConstraint(Sketcher.Constraint("Coincident", 3, 2, 0, 1))
sketch11.addConstraint(Sketcher.Constraint("Vertical", 0))
sketch11.addConstraint(Sketcher.Constraint("Horizontal", 1))
sketch11.addConstraint(Sketcher.Constraint("Vertical", 2))
sketch11.addConstraint(Sketcher.Constraint("Horizontal", 3))
sketch11.addConstraint(Sketcher.Constraint("DistanceX", 1, 2, 1, 1, 101.0))
sketch11.addConstraint(Sketcher.Constraint("DistanceY", 0, 2, 0, 1, 11.0))
sketch11.addConstraint(Sketcher.Constraint("DistanceX", -1, 1, 0, 2, 50.5))
sketch11.addConstraint(Sketcher.Constraint("DistanceY", 0, 2, -1, 1, 66.5))
pocket9 = doc.addObject("PartDesign::Pocket", "Pocket008")
body.addObject(pocket9)
pocket9.Profile = sketch11
pocket9.Length = 3
pocket9.Reversed = True

# Sketch on XY plane
sketch12 = doc.addObject("Sketcher::SketchObject", "Sketch011")
body.addObject(sketch12)
sketch12.AttachmentSupport = (doc.XY_Plane, [""])
sketch12.MapMode = "FlatFace"
sketch12.AttachmentOffset = App.Placement(Vector(0, 0, 32), App.Rotation())
sketch12.addGeometry(Part.Circle(Vector(14.8, -79.8, 0), Vector(0, 0, 1), 4), False)
sketch12.addGeometry(Part.Circle(Vector(14.8, -79.8, 0), Vector(0, 0, 1), 2.3), False)
sketch12.addGeometry(Part.Circle(Vector(-13, -105, 0), Vector(0, 0, 1), 4), False)
sketch12.addGeometry(Part.Circle(Vector(-13, -105, 0), Vector(0, 0, 1), 2), False)
sketch12.addConstraint(Sketcher.Constraint("Coincident", 1, 3, 0, 3))
sketch12.addConstraint(Sketcher.Constraint("Coincident", 3, 3, 2, 3))
sketch12.addConstraint(Sketcher.Constraint("Equal", 0, 2))
sketch12.addConstraint(Sketcher.Constraint("Diameter", 0, 8.0))
sketch12.addConstraint(Sketcher.Constraint("Diameter", 3, 4.0))
sketch12.addConstraint(Sketcher.Constraint("Diameter", 1, 4.6))
sketch12.addConstraint(Sketcher.Constraint("DistanceX", 2, 3, -1, 1, 13.0))
sketch12.addConstraint(Sketcher.Constraint("DistanceX", -1, 1, 0, 3, 14.8))
sketch12.addConstraint(Sketcher.Constraint("DistanceY", 2, 3, 0, 3, 25.2))
sketch12.addConstraint(Sketcher.Constraint("DistanceY", 0, 3, -1, 1, 79.815913))
pad3 = doc.addObject("PartDesign::Pad", "Pad002")
body.addObject(pad3)
pad3.Profile = sketch12
pad3.Length = 10

# Sketch on XZ plane
sketch13 = doc.addObject("Sketcher::SketchObject", "Sketch012")
body.addObject(sketch13)
sketch13.AttachmentSupport = (doc.XZ_Plane, [""])
sketch13.MapMode = "FlatFace"
sketch13.AttachmentOffset = App.Placement(Vector(0, 0, 110), App.Rotation())
sketch13.addGeometry(Part.Circle(Vector(-63.6, 37.7, 0), Vector(0, 0, 1), 2.3), False)
sketch13.addGeometry(Part.Circle(Vector(-63.6, 4.8, 0), Vector(0, 0, 1), 2.3), False)
sketch13.addGeometry(Part.Circle(Vector(-20.3, 4.8, 0), Vector(0, 0, 1), 2.3), False)
sketch13.addConstraint(Sketcher.Constraint("Equal", 0, 1))
sketch13.addConstraint(Sketcher.Constraint("Equal", 1, 2))
sketch13.addConstraint(Sketcher.Constraint("Horizontal", 1, 3, 2, 3))
sketch13.addConstraint(Sketcher.Constraint("Vertical", 0, 3, 1, 3))
sketch13.addConstraint(Sketcher.Constraint("Diameter", 0, 4.6))
sketch13.addConstraint(Sketcher.Constraint("DistanceY", -1, 1, 0, 3, 37.7))
sketch13.addConstraint(Sketcher.Constraint("DistanceY", -1, 1, 1, 3, 4.8))
sketch13.addConstraint(Sketcher.Constraint("DistanceX", 1, 3, 2, 3, 43.3))
sketch13.addConstraint(Sketcher.Constraint("DistanceX", 0, 3, -1, 1, 63.6276))
pocket10 = doc.addObject("PartDesign::Pocket", "Pocket009")
body.addObject(pocket10)
pocket10.Profile = sketch13
pocket10.Length = 6.7
pocket10.Reversed = True

doc.recompute()
